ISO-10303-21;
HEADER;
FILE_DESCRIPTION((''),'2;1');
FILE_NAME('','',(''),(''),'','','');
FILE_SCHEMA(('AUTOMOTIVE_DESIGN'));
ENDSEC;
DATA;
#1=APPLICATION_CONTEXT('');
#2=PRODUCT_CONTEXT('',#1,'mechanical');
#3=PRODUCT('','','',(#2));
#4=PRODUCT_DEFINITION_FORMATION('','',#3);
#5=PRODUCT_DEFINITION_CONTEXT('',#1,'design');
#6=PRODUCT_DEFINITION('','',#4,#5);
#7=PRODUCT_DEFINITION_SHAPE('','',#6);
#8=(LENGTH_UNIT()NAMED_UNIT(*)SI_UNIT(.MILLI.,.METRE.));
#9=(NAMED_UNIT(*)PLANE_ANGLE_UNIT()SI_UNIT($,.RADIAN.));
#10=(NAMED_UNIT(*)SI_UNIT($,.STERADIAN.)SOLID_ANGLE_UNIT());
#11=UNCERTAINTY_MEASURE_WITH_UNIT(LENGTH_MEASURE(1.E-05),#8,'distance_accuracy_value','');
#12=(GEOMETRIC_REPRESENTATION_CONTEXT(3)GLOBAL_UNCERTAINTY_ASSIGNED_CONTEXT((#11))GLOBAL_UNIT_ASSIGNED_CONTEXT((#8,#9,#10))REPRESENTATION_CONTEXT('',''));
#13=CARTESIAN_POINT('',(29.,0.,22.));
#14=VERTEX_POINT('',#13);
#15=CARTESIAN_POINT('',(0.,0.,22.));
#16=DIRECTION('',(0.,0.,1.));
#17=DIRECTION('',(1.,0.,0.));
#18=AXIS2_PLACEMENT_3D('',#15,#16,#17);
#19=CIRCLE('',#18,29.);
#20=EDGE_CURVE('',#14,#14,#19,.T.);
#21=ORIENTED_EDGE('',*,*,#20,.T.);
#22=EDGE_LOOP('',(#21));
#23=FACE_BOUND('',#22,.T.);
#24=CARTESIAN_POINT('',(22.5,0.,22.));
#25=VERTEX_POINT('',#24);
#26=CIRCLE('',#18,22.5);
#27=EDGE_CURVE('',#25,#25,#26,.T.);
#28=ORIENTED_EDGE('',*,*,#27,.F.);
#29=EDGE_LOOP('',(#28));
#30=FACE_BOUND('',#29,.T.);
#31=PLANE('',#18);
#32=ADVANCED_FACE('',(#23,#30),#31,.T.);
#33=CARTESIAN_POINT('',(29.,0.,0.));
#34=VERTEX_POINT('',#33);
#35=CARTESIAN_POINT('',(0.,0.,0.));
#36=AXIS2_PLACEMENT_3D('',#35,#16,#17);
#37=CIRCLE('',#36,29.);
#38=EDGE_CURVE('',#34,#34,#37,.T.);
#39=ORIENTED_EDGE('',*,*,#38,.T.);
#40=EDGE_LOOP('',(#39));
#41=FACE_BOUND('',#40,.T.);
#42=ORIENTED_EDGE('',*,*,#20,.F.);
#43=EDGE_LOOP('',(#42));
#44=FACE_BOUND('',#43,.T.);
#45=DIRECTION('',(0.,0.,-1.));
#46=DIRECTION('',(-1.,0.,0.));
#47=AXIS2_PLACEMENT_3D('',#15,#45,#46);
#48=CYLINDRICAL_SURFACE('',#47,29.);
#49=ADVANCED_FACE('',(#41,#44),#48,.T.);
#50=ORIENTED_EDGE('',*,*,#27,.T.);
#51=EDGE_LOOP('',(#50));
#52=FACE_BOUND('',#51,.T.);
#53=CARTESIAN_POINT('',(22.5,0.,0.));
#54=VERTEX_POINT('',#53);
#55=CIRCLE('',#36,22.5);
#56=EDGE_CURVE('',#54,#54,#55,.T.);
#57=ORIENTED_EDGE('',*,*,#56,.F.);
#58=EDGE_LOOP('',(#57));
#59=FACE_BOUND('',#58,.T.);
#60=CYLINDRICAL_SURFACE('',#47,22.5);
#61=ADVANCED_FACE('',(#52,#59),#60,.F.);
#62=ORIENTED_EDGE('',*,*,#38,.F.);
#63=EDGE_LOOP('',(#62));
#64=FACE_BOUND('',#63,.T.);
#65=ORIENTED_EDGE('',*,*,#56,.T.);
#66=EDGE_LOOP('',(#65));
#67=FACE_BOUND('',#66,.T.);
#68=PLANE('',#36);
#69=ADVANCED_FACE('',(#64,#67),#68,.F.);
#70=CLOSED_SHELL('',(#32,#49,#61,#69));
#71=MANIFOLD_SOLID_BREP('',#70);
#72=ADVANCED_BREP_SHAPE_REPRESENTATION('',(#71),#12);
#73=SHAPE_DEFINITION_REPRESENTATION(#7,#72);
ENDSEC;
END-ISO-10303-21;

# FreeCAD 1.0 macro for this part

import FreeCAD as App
import Part
import Sketcher

doc = App.newDocument("Part")
body = doc.addObject("PartDesign::Body", "Body")

# Sketch on XY plane
sketch1 = body.newObject("Sketcher::SketchObject", "Sketch")
sketch1.AttachmentSupport = (doc.getObject("XY_Plane"), [""])
sketch1.MapMode = "FlatFace"
sketch1.addGeometry([
    Part.Circle(App.Vector(0, 0, 0), App.Vector(0, 0, 1), 29),
    Part.Circle(App.Vector(0, 0, 0), App.Vector(0, 0, 1), 22),
], False)
sketch1.addConstraint([
    Sketcher.Constraint("Coincident", 0, 3, -1, 1),
    Sketcher.Constraint("Coincident", 1, 3, -1, 1),
    Sketcher.Constraint("Diameter", 0, 58.0),
    Sketcher.Constraint("Diameter", 1, 45.0),
])
pad1 = body.newObject("PartDesign::Pad", "Pad")
pad1.Profile = sketch1
pad1.Length = 22

doc.recompute()
